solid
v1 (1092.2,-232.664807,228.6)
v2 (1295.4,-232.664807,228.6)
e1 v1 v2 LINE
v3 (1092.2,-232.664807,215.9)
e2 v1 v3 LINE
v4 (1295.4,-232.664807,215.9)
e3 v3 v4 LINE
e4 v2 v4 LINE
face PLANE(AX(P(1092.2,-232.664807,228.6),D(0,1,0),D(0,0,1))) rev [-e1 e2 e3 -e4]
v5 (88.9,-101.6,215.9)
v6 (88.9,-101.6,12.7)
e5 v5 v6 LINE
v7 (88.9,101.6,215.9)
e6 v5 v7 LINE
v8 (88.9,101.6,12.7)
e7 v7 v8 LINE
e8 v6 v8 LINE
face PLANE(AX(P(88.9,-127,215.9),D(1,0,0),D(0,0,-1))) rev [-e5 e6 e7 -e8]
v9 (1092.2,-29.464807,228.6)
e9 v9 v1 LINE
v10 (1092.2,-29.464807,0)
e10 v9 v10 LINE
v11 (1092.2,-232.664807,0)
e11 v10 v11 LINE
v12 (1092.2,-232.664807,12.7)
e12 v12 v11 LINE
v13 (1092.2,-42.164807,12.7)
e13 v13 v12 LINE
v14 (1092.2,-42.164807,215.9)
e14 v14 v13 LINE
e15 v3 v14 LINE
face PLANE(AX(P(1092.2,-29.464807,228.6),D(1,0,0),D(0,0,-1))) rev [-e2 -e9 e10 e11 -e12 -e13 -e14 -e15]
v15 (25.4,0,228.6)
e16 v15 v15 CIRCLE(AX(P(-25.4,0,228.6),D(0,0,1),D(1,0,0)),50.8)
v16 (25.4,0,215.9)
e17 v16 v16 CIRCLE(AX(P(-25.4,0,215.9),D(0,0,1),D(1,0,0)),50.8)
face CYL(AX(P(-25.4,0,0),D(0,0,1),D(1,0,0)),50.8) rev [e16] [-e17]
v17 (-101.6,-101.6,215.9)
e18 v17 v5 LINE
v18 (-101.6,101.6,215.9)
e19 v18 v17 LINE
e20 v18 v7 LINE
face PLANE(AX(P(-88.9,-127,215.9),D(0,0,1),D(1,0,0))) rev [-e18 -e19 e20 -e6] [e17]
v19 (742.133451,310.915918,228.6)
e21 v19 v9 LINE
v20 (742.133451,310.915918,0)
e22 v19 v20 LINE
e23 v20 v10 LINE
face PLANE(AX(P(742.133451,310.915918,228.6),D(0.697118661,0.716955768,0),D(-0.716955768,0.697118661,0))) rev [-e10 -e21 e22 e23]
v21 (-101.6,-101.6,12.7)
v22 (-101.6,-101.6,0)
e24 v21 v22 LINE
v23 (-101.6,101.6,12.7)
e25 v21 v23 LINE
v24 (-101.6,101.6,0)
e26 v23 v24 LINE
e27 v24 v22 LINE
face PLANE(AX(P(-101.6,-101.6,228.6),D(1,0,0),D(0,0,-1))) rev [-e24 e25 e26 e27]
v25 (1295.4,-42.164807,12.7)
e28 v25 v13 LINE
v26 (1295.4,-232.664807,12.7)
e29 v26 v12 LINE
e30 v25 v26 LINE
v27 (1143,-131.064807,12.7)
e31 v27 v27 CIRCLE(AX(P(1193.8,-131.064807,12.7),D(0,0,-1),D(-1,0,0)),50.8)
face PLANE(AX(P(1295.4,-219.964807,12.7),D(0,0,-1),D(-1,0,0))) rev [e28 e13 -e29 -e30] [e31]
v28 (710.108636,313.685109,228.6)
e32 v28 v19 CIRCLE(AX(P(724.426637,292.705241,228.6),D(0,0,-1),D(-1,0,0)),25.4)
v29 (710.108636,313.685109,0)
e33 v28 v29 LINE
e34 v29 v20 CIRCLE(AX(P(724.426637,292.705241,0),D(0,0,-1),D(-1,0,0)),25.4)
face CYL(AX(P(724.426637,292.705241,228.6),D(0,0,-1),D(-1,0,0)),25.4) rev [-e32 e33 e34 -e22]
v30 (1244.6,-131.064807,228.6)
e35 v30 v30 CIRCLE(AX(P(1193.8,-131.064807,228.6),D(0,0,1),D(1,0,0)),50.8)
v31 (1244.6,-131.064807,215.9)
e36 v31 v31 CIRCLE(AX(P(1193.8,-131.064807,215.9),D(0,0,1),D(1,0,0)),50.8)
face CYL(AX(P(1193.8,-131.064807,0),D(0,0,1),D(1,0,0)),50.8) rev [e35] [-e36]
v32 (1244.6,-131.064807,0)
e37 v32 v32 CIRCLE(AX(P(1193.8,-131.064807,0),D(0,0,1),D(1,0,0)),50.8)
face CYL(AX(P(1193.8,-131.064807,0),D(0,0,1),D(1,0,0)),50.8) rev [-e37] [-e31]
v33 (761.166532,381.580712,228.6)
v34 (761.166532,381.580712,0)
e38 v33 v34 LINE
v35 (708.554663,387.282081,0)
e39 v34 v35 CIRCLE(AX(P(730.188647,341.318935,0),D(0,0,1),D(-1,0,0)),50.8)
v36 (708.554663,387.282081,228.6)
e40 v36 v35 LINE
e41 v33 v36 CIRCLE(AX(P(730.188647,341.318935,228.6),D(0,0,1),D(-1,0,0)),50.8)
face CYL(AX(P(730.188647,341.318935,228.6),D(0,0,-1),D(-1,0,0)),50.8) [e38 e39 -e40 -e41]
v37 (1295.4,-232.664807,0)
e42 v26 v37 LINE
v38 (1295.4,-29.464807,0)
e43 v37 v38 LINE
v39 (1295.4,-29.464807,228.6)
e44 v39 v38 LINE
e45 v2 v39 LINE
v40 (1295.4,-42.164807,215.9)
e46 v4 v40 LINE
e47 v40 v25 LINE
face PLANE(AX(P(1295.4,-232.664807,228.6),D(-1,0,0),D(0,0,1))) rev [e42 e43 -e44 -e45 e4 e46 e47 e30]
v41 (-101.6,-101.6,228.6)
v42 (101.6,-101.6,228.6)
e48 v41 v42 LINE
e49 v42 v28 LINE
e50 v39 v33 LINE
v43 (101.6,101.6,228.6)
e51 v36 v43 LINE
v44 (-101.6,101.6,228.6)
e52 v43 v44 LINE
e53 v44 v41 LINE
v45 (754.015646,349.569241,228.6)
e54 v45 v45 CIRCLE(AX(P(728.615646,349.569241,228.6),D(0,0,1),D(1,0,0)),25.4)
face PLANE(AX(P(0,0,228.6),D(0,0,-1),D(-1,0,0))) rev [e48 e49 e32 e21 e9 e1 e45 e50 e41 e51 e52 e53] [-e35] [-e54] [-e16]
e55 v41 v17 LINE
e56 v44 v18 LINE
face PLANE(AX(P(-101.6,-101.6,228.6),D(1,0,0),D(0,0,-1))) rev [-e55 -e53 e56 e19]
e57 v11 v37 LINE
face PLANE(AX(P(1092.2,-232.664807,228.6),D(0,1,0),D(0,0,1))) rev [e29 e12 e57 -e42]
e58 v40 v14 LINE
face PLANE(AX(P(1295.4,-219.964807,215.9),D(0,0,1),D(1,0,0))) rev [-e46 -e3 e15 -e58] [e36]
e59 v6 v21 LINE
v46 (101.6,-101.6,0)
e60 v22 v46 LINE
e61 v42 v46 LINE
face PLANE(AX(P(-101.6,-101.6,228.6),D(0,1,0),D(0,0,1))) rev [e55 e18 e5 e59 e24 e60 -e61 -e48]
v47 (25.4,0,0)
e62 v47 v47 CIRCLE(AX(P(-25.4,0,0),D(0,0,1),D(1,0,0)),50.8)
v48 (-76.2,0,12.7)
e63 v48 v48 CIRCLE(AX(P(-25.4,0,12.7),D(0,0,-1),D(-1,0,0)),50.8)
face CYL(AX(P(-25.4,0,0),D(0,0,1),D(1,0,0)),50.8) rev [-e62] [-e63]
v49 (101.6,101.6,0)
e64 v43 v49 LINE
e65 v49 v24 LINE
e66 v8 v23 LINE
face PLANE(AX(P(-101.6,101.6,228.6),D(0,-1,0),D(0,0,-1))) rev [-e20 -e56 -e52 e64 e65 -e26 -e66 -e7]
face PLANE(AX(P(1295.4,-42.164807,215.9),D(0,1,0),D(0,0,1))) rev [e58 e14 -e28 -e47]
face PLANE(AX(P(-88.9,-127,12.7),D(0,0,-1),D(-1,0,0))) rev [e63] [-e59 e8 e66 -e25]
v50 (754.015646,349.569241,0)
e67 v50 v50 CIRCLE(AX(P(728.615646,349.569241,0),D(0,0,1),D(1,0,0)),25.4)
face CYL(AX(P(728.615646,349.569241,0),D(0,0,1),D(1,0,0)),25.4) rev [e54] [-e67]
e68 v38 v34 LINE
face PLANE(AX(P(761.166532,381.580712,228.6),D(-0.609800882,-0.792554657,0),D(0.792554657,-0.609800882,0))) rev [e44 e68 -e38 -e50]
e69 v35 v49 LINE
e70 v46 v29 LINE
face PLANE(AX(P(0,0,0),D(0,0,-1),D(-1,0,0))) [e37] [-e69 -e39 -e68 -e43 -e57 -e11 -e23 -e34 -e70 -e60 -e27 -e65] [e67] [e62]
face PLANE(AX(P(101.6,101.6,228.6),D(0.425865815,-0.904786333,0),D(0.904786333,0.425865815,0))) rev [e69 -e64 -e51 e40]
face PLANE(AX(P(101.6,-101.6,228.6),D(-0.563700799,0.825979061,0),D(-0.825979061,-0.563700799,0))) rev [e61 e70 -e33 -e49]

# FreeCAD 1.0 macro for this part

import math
import FreeCAD as App
import Part
import Sketcher

V = App.Vector
Q = App.Units.Quantity

doc = App.newDocument("Part")
params = doc.addObject("Spreadsheet::Sheet", "Params")
for row, (alias, value) in enumerate([
    ("sketch1_width", "8 in"),
    ("pad1_length", "9 in"),
    ("sketch2_height", "8 in"),
    ("pocket1_length", "9 in"),
    ("sketch3_diameter", "4 in"),
    ("sketch4_radius", "1 in"),
    ("sketch4_radius2", "2 in"),
    ("sketch4_width", "8 in"),
    ("sketch4_height", "8 in"),
    ("sketch4_height2", "8 in"),
    ("pad2_length", "9 in"),
    ("sketch5_height", "8 in"),
    ("sketch6_diameter", "4 in"),
    ("sketch7_diameter", "2 in"),
], start=1):
    params.set(f"A{row}", alias)
    params.set(f"B{row}", "=" + value)
    params.setAlias(f"B{row}", alias)

body = doc.addObject("PartDesign::Body", "Body")

# Sketch on XY plane
sketch1 = body.newObject("Sketcher::SketchObject", "Sketch")
sketch1.AttachmentSupport = (doc.getObject("XY_Plane"), [""])
sketch1.MapMode = "FlatFace"
sketch1.addGeometry([
    Part.LineSegment(V(-102, 102, 0), V(-102, -102, 0)),
    Part.LineSegment(V(-102, -102, 0), V(102, -102, 0)),
    Part.LineSegment(V(102, -102, 0), V(102, 102, 0)),
    Part.LineSegment(V(102, 102, 0), V(-102, 102, 0)),
], False)
sketch1.addConstraint([
    Sketcher.Constraint("Coincident", 0, 2, 1, 1),
    Sketcher.Constraint("Coincident", 1, 2, 2, 1),
    Sketcher.Constraint("Coincident", 2, 2, 3, 1),
    Sketcher.Constraint("Coincident", 3, 2, 0, 1),
    Sketcher.Constraint("Vertical", 0),
    Sketcher.Constraint("Horizontal", 1),
    Sketcher.Constraint("Vertical", 2),
    Sketcher.Constraint("Horizontal", 3),
    Sketcher.Constraint("Symmetric", 0, 2, 2, 2, -1, 1),
    Sketcher.Constraint("Equal", 3, 0),
    Sketcher.Constraint("DistanceX", 1, 1, 1, 2, Q("8 in")),
])
sketch1.setExpression("Constraints[10]", "Params.sketch1_width")
pad1 = body.newObject("PartDesign::Pad", "Pad")
pad1.Profile = sketch1
pad1.setExpression("Length", "Params.pad1_length")

# Sketch on XZ plane
sketch2 = body.newObject("Sketcher::SketchObject", "Sketch001")
sketch2.AttachmentSupport = (doc.getObject("XZ_Plane"), [""])
sketch2.MapMode = "FlatFace"
sketch2.AttachmentOffset = App.Placement(V(0, 0, -4 * 25.4), App.Rotation())
sketch2.addGeometry([
    Part.LineSegment(V(-132, 13, 0), V(-132, 216, 0)),
    Part.LineSegment(V(-132, 216, 0), V(89, 216, 0)),
    Part.LineSegment(V(89, 216, 0), V(89, 13, 0)),
    Part.LineSegment(V(89, 13, 0), V(-132, 13, 0)),
], False)
sketch2.addConstraint([
    Sketcher.Constraint("Coincident", 0, 2, 1, 1),
    Sketcher.Constraint("Coincident", 1, 2, 2, 1),
    Sketcher.Constraint("Coincident", 2, 2, 3, 1),
    Sketcher.Constraint("Coincident", 3, 2, 0, 1),
    Sketcher.Constraint("Vertical", 0),
    Sketcher.Constraint("Horizontal", 1),
    Sketcher.Constraint("Vertical", 2),
    Sketcher.Constraint("Horizontal", 3),
    Sketcher.Constraint("DistanceY", 0, 1, 0, 2, Q("8 in")),
    Sketcher.Constraint("DistanceY", -1, 1, 0, 2, Q("8.5 in")),
    Sketcher.Constraint("DistanceX", -1, 1, 1, 2, Q("3.5 in")),
    Sketcher.Constraint("DistanceX", 1, 1, 1, 2, Q("220.820099 mm")),
])
sketch2.setExpression("Constraints[8]", "Params.sketch2_height")
pocket1 = body.newObject("PartDesign::Pocket", "Pocket")
pocket1.Profile = sketch2
pocket1.setExpression("Length", "Params.pocket1_length")
pocket1.Reversed = True

# Sketch on XY plane
sketch3 = body.newObject("Sketcher::SketchObject", "Sketch002")
sketch3.AttachmentSupport = (doc.getObject("XY_Plane"), [""])
sketch3.MapMode = "FlatFace"
sketch3.AttachmentOffset = App.Placement(V(0, 0, 9 * 25.4), App.Rotation())
sketch3.addGeometry(Part.Circle(V(-25, 0, 0), V(0, 0, 1), 51), False)
sketch3.addConstraint([
    Sketcher.Constraint("PointOnObject", 0, 3, -1),
    Sketcher.Constraint("Diameter", 0, Q("4 in")),
    Sketcher.Constraint("DistanceX", 0, 3, -1, 1, Q("1 in")),
])
sketch3.setExpression("Constraints[1]", "Params.sketch3_diameter")
pocket2 = body.newObject("PartDesign::Pocket", "Pocket001")
pocket2.Profile = sketch3
pocket2.Type = "ThroughAll"

# Sketch on XY plane
sketch4 = body.newObject("Sketcher::SketchObject", "Sketch003")
sketch4.AttachmentSupport = (doc.getObject("XY_Plane"), [""])
sketch4.MapMode = "FlatFace"
sketch4.addGeometry([
    Part.LineSegment(V(708.554663, 387.282081, 0), V(101.6, 101.6, 0)),  # 0
    Part.LineSegment(V(101.6, 101.6, 0), V(101.6, -101.6, 0)),  # 1
    Part.LineSegment(V(101.6, -101.6, 0), V(710.108636, 313.685109, 0)),  # 2
    Part.ArcOfCircle(Part.Circle(V(724.426637, 292.705241, 0), V(0, 0, 1), 25.4), math.radians(45.803712), math.radians(124.312121)),  # 3
    Part.LineSegment(V(742.133451, 310.915918, 0), V(1092.2, -29.464807, 0)),  # 4
    Part.LineSegment(V(1092.2, -29.464807, 0), V(1092.2, -232.664807, 0)),  # 5
    Part.LineSegment(V(1092.2, -232.664807, 0), V(1295.4, -232.664807, 0)),  # 6
    Part.LineSegment(V(1295.4, -232.664807, 0), V(1295.4, -29.464807, 0)),  # 7
    Part.LineSegment(V(1295.4, -29.464807, 0), V(761.166532, 381.580712, 0)),  # 8
    Part.ArcOfCircle(Part.Circle(V(730.188647, 341.318935, 0), V(0, 0, 1), 50.8), math.radians(52.424893), math.radians(115.205479)),  # 9
], False)
sketch4.addConstraint([
    Sketcher.Constraint("Coincident", 0, 2, 1, 1),
    Sketcher.Constraint("Coincident", 1, 2, 2, 1),
    Sketcher.Constraint("Coincident", 2, 2, 3, 2),
    Sketcher.Constraint("Coincident", 3, 1, 4, 1),
    Sketcher.Constraint("Coincident", 4, 2, 5, 1),
    Sketcher.Constraint("Coincident", 5, 2, 6, 1),
    Sketcher.Constraint("Coincident", 6, 2, 7, 1),
    Sketcher.Constraint("Coincident", 7, 2, 8, 1),
    Sketcher.Constraint("Coincident", 8, 2, 9, 1),
    Sketcher.Constraint("Coincident", 9, 2, 0, 1),
    Sketcher.Constraint("Vertical", 1),
    Sketcher.Constraint("Vertical", 5),
    Sketcher.Constraint("Horizontal", 6),
    Sketcher.Constraint("Vertical", 7),
    Sketcher.Constraint("Radius", 3, Q("1 in")),
    Sketcher.Constraint("Radius", 9, Q("2 in")),
    Sketcher.Constraint("DistanceX", 6, 1, 6, 2, Q("8 in")),
    Sketcher.Constraint("DistanceY", 1, 2, 1, 1, Q("8 in")),
    Sketcher.Constraint("DistanceY", 5, 2, 5, 1, Q("8 in")),
    Sketcher.Constraint("DistanceY", 7, 1, 7, 2, Q("8 in")),
    Sketcher.Constraint("DistanceX", -1, 1, 0, 2, Q("4 in")),
    Sketcher.Constraint("DistanceY", -1, 1, 0, 2, Q("4 in")),
    Sketcher.Constraint("DistanceX", -1, 1, 4, 2, Q("43 in")),
    Sketcher.Constraint("DistanceX", 2, 2, 3, 3, Q("14.318 mm")),
    Sketcher.Constraint("Distance", 2, Q("736.71194 mm")),
    Sketcher.Constraint("DistanceY", -1, 1, 3, 3, Q("292.705241 mm")),
    Sketcher.Constraint("DistanceX", -1, 1, 3, 1, Q("742.133451 mm")),
    Sketcher.Constraint("DistanceX", -1, 1, 8, 2, Q("761.166532 mm")),
    Sketcher.Constraint("DistanceY", -1, 1, 8, 2, Q("381.580712 mm")),
    Sketcher.Constraint("DistanceY", -1, 1, 9, 2, Q("387.282081 mm")),
    Sketcher.Constraint("DistanceX", 3, 3, 9, 3, Q("5.76201 mm")),
    Sketcher.Constraint("DistanceY", 4, 2, 3, 3, Q("322.170048 mm")),
])
sketch4.setExpression("Constraints[14]", "Params.sketch4_radius")
sketch4.setExpression("Constraints[15]", "Params.sketch4_radius2")
sketch4.setExpression("Constraints[16]", "Params.sketch4_width")
sketch4.setExpression("Constraints[17]", "Params.sketch4_height")
sketch4.setExpression("Constraints[18]", "Params.sketch4_height2")
pad2 = body.newObject("PartDesign::Pad", "Pad001")
pad2.Profile = sketch4
pad2.setExpression("Length", "Params.pad2_length")

# Sketch on YZ plane
sketch5 = body.newObject("Sketcher::SketchObject", "Sketch004")
sketch5.AttachmentSupport = (doc.getObject("YZ_Plane"), [""])
sketch5.MapMode = "FlatFace"
sketch5.AttachmentOffset = App.Placement(V(0, 0, 43 * 25.4), App.Rotation())
sketch5.addGeometry([
    Part.LineSegment(V(-267, 13, 0), V(-267, 216, 0)),
    Part.LineSegment(V(-267, 216, 0), V(-42, 216, 0)),
    Part.LineSegment(V(-42, 216, 0), V(-42, 13, 0)),
    Part.LineSegment(V(-42, 13, 0), V(-267, 13, 0)),
], False)
sketch5.addConstraint([
    Sketcher.Constraint("Coincident", 0, 2, 1, 1),
    Sketcher.Constraint("Coincident", 1, 2, 2, 1),
    Sketcher.Constraint("Coincident", 2, 2, 3, 1),
    Sketcher.Constraint("Coincident", 3, 2, 0, 1),
    Sketcher.Constraint("Vertical", 0),
    Sketcher.Constraint("Horizontal", 1),
    Sketcher.Constraint("Vertical", 2),
    Sketcher.Constraint("Horizontal", 3),
    Sketcher.Constraint("DistanceY", 0, 1, 0, 2, Q("8 in")),
    Sketcher.Constraint("DistanceY", -1, 1, 0, 2, Q("8.5 in")),
    Sketcher.Constraint("DistanceX", 1, 1, 1, 2, Q("224.56462 mm")),
    Sketcher.Constraint("DistanceX", 0, 2, -1, 1, Q("266.729427 mm")),
])
sketch5.setExpression("Constraints[8]", "Params.sketch5_height")
pocket3 = body.newObject("PartDesign::Pocket", "Pocket002")
pocket3.Profile = sketch5
pocket3.Type = "ThroughAll"
pocket3.Reversed = True

# Sketch on XY plane
sketch6 = body.newObject("Sketcher::SketchObject", "Sketch005")
sketch6.AttachmentSupport = (doc.getObject("XY_Plane"), [""])
sketch6.MapMode = "FlatFace"
sketch6.AttachmentOffset = App.Placement(V(0, 0, 9 * 25.4), App.Rotation())
sketch6.addGeometry(Part.Circle(V(1194, -131, 0), V(0, 0, 1), 51), False)
sketch6.addConstraint([
    Sketcher.Constraint("Diameter", 0, Q("4 in")),
    Sketcher.Constraint("DistanceX", -1, 1, 0, 3, Q("47 in")),
    Sketcher.Constraint("DistanceY", 0, 3, -1, 1, Q("131.064807 mm")),
])
sketch6.setExpression("Constraints[0]", "Params.sketch6_diameter")
pocket4 = body.newObject("PartDesign::Pocket", "Pocket003")
pocket4.Profile = sketch6
pocket4.Type = "ThroughAll"

# Sketch on XY plane
sketch7 = body.newObject("Sketcher::SketchObject", "Sketch006")
sketch7.AttachmentSupport = (doc.getObject("XY_Plane"), [""])
sketch7.MapMode = "FlatFace"
sketch7.AttachmentOffset = App.Placement(V(0, 0, 9 * 25.4), App.Rotation())
sketch7.addGeometry(Part.Circle(V(729, 350, 0), V(0, 0, 1), 25), False)
sketch7.addConstraint([
    Sketcher.Constraint("Diameter", 0, Q("2 in")),
    Sketcher.Constraint("DistanceY", -1, 1, 0, 3, Q("349.569241 mm")),
    Sketcher.Constraint("DistanceX", -1, 1, 0, 3, Q("728.615646 mm")),
])
sketch7.setExpression("Constraints[0]", "Params.sketch7_diameter")
pocket5 = body.newObject("PartDesign::Pocket", "Pocket004")
pocket5.Profile = sketch7
pocket5.Type = "ThroughAll"

doc.recompute()
